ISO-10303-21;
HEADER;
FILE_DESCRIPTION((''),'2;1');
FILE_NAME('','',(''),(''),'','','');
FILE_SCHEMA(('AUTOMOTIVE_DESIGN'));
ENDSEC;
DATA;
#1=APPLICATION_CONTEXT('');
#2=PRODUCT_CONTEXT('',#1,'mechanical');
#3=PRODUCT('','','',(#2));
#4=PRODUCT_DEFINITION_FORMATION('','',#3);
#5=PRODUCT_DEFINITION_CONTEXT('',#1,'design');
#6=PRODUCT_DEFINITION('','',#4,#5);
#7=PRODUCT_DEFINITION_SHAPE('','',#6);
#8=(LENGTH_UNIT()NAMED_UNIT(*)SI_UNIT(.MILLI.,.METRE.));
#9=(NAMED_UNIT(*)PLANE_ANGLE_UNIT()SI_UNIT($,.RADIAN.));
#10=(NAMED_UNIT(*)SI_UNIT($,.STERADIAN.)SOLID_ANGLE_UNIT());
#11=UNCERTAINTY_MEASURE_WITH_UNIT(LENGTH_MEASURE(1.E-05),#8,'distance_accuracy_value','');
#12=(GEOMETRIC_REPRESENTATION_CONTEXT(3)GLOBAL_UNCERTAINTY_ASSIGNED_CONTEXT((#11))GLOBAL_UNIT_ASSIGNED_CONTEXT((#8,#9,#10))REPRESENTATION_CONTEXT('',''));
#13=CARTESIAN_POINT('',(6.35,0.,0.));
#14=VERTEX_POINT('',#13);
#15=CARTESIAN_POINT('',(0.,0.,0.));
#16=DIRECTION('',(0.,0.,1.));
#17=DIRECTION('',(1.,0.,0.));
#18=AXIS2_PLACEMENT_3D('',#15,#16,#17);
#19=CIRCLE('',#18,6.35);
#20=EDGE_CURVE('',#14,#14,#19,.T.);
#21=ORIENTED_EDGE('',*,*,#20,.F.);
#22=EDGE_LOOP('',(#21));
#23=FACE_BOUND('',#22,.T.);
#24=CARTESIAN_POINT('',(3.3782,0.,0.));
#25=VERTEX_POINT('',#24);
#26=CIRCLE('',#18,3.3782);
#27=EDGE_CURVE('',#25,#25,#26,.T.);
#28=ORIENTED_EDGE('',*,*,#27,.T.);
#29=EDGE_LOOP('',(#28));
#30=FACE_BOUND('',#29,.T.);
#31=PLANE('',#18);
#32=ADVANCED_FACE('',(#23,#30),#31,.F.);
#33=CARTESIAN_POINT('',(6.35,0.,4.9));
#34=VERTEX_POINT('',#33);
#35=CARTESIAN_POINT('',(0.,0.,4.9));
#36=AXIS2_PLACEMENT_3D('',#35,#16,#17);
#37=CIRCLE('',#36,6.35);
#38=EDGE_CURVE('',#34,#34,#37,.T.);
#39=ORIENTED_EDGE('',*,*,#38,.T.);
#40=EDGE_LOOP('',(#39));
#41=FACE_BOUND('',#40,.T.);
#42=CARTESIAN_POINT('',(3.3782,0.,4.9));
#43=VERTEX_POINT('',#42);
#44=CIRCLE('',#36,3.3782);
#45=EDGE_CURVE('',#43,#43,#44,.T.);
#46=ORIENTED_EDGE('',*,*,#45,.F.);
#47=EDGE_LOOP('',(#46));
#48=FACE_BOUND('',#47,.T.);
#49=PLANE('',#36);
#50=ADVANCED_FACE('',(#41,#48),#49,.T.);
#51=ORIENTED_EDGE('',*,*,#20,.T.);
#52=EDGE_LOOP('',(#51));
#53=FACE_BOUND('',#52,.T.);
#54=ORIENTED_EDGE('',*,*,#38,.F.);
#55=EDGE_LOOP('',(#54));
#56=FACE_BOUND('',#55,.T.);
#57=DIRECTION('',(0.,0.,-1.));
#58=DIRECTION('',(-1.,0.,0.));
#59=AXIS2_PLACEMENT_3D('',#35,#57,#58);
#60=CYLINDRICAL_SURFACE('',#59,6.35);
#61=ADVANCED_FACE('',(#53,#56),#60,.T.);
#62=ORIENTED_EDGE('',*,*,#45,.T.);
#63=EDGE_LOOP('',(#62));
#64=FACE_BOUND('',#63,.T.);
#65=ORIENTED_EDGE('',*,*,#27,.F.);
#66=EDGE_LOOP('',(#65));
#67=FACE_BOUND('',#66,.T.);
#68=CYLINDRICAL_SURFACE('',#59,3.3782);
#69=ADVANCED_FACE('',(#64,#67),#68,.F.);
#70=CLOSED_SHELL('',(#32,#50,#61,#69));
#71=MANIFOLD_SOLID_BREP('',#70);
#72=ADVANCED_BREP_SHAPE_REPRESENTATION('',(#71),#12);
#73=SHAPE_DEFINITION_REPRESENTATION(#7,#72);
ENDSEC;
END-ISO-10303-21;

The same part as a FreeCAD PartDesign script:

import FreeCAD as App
import Part
import Sketcher
Q = App.Units.Quantity

doc = App.newDocument("Part")
body = doc.addObject("PartDesign::Body", "Body")

sketch1 = doc.addObject("Sketcher::SketchObject", "Sketch")
body.addObject(sketch1)
sketch1.AttachmentSupport = (doc.XY_Plane, [""])
sketch1.MapMode = "FlatFace"
sketch1.addGeometry(Part.Circle(App.Vector(0, 0, 0), App.Vector(0, 0, 1), 6.35), False)
sketch1.addGeometry(Part.Circle(App.Vector(0, 0, 0), App.Vector(0, 0, 1), 3.3782), False)
sketch1.addConstraint(Sketcher.Constraint("Coincident", 0, 3, -1, 1))
sketch1.addConstraint(Sketcher.Constraint("Coincident", 1, 3, -1, 1))
sketch1.addConstraint(Sketcher.Constraint("Diameter", 0, Q("0.5 in")))
sketch1.addConstraint(Sketcher.Constraint("Diameter", 1, Q("0.266 in")))
pad1 = doc.addObject("PartDesign::Pad", "Pad")
body.addObject(pad1)
pad1.Profile = sketch1
pad1.Length = 4.9

doc.recompute()
